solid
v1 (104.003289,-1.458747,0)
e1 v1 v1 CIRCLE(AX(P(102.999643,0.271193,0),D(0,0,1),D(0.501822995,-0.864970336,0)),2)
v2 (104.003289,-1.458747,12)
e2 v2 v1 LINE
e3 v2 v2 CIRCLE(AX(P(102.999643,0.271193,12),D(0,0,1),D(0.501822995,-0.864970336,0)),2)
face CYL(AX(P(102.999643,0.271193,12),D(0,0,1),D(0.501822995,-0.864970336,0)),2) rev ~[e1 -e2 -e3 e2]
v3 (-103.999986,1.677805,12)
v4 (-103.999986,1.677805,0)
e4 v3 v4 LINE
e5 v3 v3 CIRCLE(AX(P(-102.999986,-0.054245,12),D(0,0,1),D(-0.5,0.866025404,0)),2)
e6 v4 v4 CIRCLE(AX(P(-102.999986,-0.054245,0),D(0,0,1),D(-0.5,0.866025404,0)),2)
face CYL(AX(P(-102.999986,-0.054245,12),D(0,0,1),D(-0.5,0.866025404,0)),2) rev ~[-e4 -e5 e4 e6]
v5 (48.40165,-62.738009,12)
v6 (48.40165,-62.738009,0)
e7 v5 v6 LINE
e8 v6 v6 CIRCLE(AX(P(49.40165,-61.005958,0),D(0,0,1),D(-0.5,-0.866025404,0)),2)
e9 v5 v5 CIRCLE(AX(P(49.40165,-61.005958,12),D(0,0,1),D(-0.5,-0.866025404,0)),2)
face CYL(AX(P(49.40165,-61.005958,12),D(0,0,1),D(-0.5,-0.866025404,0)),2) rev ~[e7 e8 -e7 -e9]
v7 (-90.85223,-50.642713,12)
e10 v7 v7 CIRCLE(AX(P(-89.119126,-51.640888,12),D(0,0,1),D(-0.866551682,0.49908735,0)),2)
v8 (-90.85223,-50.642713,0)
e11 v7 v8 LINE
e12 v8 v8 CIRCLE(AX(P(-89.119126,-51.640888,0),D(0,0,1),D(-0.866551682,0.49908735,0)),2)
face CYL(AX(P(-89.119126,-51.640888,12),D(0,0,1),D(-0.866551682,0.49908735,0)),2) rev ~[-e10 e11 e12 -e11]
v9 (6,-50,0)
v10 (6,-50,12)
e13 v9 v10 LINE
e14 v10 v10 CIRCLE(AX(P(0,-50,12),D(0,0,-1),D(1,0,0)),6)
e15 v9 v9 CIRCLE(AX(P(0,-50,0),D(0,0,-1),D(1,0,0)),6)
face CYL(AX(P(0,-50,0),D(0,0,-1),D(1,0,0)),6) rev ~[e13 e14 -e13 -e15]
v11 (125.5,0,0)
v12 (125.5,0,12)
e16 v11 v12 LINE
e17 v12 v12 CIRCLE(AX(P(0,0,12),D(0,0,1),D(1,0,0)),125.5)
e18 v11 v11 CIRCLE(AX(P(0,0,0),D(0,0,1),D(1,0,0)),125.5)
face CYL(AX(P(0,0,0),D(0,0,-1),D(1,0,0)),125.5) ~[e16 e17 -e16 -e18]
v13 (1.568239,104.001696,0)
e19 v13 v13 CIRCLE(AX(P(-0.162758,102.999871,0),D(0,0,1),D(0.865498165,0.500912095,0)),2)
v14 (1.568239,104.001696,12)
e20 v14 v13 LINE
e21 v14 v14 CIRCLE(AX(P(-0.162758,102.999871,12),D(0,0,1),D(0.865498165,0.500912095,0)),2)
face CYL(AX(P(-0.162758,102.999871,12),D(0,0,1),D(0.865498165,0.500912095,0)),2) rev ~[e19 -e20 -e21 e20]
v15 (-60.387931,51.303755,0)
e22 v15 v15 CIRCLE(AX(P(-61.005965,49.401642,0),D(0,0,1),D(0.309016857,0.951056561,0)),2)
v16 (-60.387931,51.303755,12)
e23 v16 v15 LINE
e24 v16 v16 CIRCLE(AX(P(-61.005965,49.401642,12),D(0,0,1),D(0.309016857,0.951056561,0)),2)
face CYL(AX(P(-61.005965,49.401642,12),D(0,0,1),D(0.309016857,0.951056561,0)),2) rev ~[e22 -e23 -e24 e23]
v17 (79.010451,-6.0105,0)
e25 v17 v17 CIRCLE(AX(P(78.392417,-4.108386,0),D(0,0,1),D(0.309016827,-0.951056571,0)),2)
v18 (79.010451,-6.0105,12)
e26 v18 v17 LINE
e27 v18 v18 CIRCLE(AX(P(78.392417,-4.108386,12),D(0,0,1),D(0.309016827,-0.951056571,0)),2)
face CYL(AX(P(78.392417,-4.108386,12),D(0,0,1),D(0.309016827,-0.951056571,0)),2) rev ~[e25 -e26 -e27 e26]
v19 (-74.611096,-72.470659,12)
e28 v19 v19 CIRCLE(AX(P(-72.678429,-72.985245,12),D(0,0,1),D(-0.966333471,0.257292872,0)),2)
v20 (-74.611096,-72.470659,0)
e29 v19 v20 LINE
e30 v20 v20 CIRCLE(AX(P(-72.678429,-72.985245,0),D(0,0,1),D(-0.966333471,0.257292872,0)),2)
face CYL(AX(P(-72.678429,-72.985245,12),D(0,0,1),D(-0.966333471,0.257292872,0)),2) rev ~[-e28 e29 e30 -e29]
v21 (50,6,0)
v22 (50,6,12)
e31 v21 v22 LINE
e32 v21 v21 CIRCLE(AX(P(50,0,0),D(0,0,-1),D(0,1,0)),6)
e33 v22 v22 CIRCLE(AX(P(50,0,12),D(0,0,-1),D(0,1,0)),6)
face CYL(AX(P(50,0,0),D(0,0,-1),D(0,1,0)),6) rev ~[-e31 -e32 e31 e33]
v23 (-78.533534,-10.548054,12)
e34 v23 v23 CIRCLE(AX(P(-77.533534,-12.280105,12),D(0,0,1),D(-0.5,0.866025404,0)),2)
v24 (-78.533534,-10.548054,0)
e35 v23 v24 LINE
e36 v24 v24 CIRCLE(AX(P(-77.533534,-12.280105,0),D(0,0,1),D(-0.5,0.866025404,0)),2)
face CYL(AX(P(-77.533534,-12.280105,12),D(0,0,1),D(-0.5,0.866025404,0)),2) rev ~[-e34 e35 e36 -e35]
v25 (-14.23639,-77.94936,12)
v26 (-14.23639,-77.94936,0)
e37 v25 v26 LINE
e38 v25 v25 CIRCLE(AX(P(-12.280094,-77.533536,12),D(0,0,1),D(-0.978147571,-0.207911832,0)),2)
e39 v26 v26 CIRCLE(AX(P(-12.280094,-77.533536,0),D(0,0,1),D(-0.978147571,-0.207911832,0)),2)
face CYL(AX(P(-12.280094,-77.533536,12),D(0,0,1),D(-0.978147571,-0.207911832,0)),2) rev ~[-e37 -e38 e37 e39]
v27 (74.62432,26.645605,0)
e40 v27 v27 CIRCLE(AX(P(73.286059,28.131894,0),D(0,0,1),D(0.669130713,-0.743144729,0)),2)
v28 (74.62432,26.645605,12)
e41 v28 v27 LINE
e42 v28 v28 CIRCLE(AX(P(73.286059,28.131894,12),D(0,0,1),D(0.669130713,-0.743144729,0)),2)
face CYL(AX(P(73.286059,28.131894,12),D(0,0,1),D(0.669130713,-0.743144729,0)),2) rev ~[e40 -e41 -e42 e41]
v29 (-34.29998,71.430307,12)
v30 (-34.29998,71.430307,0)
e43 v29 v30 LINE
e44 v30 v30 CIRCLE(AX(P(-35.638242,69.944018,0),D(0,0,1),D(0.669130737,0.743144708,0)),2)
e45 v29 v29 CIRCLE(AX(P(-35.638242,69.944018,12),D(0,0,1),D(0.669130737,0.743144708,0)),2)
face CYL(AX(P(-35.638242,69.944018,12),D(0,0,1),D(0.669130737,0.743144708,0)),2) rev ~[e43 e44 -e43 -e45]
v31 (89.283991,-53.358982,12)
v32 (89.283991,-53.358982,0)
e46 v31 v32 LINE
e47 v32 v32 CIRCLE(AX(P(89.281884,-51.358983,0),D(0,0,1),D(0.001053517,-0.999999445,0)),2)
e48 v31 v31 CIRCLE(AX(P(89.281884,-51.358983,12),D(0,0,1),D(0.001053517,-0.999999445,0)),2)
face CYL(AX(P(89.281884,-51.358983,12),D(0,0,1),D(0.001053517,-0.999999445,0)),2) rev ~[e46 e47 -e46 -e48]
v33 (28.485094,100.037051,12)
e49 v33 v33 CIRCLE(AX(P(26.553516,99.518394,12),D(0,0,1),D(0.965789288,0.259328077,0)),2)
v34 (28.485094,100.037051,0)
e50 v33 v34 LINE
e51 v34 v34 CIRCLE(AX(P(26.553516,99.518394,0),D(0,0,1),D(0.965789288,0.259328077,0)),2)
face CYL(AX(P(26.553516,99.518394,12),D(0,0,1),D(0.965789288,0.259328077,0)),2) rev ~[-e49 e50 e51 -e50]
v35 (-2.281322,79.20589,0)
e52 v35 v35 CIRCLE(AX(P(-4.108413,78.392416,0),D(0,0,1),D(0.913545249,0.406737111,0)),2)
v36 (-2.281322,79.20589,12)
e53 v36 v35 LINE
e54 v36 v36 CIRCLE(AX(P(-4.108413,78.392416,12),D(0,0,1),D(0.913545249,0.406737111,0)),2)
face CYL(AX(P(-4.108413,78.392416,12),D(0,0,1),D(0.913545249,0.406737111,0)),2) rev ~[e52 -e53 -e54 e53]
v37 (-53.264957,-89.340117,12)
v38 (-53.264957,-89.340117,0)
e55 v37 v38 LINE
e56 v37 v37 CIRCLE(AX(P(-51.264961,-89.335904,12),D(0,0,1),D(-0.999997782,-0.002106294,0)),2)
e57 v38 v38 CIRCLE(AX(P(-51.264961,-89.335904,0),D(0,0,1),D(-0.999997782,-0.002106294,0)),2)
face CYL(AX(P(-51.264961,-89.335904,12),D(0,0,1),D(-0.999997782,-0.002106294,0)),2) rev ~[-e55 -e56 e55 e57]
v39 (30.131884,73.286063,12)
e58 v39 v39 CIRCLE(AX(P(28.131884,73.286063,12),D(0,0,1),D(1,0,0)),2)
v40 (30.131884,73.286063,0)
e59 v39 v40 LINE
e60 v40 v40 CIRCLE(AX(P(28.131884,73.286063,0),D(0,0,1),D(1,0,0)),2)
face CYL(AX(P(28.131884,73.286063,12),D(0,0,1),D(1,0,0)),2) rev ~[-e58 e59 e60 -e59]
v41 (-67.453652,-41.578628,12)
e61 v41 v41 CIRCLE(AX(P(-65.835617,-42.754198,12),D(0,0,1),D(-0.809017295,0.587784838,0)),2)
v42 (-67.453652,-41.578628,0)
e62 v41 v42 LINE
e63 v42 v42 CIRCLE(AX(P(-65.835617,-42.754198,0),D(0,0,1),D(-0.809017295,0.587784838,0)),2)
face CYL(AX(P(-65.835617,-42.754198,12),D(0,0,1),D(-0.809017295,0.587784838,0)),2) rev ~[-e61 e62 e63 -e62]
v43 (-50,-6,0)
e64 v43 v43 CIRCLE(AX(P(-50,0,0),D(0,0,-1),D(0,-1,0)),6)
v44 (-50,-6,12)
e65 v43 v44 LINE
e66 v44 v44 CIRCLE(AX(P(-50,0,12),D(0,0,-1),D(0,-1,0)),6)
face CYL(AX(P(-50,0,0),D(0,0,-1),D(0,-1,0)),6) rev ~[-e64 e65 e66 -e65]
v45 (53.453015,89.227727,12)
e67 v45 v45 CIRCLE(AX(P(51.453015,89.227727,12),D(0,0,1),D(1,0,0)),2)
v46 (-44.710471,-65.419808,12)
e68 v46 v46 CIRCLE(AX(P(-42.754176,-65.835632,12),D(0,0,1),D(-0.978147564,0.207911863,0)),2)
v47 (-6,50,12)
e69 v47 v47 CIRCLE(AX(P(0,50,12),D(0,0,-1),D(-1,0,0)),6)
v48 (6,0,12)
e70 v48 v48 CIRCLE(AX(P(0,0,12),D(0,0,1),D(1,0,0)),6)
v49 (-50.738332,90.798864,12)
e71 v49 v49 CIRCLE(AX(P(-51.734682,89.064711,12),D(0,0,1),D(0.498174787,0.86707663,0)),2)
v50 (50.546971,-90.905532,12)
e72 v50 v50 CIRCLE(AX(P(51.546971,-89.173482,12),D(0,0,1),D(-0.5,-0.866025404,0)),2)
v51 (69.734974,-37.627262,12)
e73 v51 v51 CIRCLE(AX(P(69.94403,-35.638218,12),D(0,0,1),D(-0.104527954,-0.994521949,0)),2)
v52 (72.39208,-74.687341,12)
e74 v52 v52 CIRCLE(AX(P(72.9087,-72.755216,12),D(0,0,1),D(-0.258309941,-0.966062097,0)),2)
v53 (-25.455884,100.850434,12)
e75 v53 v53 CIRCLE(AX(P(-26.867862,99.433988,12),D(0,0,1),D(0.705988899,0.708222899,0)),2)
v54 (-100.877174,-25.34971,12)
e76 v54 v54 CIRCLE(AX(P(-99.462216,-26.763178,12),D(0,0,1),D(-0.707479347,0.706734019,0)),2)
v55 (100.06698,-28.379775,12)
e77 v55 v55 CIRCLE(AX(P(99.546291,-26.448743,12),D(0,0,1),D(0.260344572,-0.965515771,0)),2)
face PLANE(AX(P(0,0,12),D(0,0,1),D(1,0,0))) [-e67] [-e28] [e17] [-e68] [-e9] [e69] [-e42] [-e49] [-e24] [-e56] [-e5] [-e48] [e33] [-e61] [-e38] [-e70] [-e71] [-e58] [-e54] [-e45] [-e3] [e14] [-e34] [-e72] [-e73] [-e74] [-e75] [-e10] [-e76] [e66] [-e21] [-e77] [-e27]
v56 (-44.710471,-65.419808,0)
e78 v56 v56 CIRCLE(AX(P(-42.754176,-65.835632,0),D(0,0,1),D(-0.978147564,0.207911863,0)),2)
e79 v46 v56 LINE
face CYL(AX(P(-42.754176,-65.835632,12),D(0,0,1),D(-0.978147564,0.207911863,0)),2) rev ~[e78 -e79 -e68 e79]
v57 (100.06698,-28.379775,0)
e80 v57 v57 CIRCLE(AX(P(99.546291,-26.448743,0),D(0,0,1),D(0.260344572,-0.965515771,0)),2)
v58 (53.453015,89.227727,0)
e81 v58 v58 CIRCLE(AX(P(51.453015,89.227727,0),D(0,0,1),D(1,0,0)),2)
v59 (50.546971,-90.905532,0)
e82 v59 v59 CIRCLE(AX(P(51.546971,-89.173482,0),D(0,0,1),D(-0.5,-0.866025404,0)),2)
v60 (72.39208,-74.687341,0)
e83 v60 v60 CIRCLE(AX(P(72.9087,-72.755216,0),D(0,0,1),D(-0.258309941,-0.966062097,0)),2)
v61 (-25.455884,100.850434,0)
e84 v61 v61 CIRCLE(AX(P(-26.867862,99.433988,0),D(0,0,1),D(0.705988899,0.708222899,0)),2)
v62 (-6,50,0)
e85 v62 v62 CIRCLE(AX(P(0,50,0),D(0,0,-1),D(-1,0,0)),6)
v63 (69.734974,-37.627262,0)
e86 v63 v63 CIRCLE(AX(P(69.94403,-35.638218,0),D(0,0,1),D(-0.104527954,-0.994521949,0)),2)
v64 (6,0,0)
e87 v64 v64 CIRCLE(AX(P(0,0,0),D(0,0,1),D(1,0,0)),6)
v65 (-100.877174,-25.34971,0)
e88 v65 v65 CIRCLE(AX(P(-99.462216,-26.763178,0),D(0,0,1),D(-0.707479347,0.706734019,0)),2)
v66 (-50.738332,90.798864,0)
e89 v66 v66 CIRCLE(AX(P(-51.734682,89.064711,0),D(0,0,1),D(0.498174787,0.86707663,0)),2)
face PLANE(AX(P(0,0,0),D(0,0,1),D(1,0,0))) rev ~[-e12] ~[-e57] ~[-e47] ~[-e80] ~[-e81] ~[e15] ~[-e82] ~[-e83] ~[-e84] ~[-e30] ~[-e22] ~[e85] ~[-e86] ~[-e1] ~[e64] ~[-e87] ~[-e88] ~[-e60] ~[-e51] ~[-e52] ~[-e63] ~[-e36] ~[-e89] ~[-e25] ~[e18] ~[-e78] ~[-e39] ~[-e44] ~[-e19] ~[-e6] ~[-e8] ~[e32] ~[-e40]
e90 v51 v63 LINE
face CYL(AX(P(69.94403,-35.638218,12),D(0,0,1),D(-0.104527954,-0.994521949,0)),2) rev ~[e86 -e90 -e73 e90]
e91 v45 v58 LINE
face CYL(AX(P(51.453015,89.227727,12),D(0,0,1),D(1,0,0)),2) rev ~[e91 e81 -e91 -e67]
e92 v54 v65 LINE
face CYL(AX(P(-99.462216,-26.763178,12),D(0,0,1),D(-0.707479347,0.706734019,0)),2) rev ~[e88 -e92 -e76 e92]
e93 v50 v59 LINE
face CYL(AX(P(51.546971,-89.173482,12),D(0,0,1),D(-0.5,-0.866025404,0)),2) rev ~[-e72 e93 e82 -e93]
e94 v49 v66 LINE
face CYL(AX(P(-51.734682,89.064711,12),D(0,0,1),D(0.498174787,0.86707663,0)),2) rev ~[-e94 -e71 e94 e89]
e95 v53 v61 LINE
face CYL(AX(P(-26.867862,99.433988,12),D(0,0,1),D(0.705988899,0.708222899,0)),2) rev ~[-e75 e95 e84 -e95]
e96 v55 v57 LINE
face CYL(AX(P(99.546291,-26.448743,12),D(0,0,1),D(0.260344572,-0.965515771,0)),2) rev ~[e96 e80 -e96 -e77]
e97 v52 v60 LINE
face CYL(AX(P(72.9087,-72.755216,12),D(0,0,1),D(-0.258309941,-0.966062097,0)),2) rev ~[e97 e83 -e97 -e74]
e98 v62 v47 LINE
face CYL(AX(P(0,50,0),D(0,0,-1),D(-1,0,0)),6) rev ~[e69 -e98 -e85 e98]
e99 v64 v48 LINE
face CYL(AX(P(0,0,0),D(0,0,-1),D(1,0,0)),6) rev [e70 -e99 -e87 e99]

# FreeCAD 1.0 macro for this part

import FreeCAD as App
import Part
import Sketcher
from FreeCAD import Vector
Q = App.Units.Quantity

doc = App.newDocument("Part")
body = doc.addObject("PartDesign::Body", "Body")

sketch1 = doc.addObject("Sketcher::SketchObject", "Sketch")
body.addObject(sketch1)
sketch1.AttachmentSupport = (doc.XY_Plane, [""])
sketch1.MapMode = "FlatFace"
sketch1.addGeometry([
    Part.Circle(Vector(0, 0, 0), Vector(0, 0, 1), 126),
    Part.Circle(Vector(0, 0, 0), Vector(0, 0, 1), 6),
], False)
sketch1.addConstraint([
    Sketcher.Constraint("Coincident", 0, 3, -1, 1),
    Sketcher.Constraint("Coincident", 1, 3, -1, 1),
    Sketcher.Constraint("Diameter", 0, Q("251 mm")),
    Sketcher.Constraint("Diameter", 1, Q("12 mm")),
])
pad1 = doc.addObject("PartDesign::Pad", "Pad")
body.addObject(pad1)
pad1.Profile = sketch1
pad1.Length = 12

sketch2 = doc.addObject("Sketcher::SketchObject", "Sketch001")
body.addObject(sketch2)
sketch2.AttachmentSupport = (doc.XY_Plane, [""])
sketch2.MapMode = "FlatFace"
sketch2.addGeometry(Part.Circle(Vector(0, 50, 0), Vector(0, 0, 1), 6), False)
sketch2.addConstraint([
    Sketcher.Constraint("PointOnObject", 0, 3, -2),
    Sketcher.Constraint("Diameter", 0, Q("12 mm")),
    Sketcher.Constraint("DistanceY", -1, 1, 0, 3, Q("50 mm")),
])
pocket1 = doc.addObject("PartDesign::Pocket", "Pocket")
body.addObject(pocket1)
pocket1.Profile = sketch2
pocket1.Type = "ThroughAll"
pocket1.Reversed = True
doc.recompute()

polarpattern = doc.addObject("PartDesign::PolarPattern", "PolarPattern")
body.addObject(polarpattern)
polarpattern.Originals = [pocket1]
polarpattern.Axis = (doc.Z_Axis, [""])
polarpattern.Angle = 360
polarpattern.Occurrences = 4
body.Tip = polarpattern

sketch3 = doc.addObject("Sketcher::SketchObject", "Sketch002")
body.addObject(sketch3)
sketch3.AttachmentSupport = (doc.XY_Plane, [""])
sketch3.MapMode = "FlatFace"
sketch3.AttachmentOffset = App.Placement(Vector(0, 0, 12), App.Rotation())
sketch3.addGeometry(Part.Circle(Vector(28.1, 73.3, 0), Vector(0, 0, 1), 2), False)
sketch3.addConstraint([
    Sketcher.Constraint("Diameter", 0, Q("4 mm")),
    Sketcher.Constraint("DistanceX", -1, 1, 0, 3, Q("28.131884 mm")),
    Sketcher.Constraint("DistanceY", -1, 1, 0, 3, Q("73.286063 mm")),
])
pocket2 = doc.addObject("PartDesign::Pocket", "Pocket001")
body.addObject(pocket2)
pocket2.Profile = sketch3
pocket2.Type = "ThroughAll"

sketch4 = doc.addObject("Sketcher::SketchObject", "Sketch003")
body.addObject(sketch4)
sketch4.AttachmentSupport = (doc.XY_Plane, [""])
sketch4.MapMode = "FlatFace"
sketch4.AttachmentOffset = App.Placement(Vector(0, 0, 12), App.Rotation())
sketch4.addGeometry(Part.Circle(Vector(51.5, 89.2, 0), Vector(0, 0, 1), 2), False)
sketch4.addConstraint([
    Sketcher.Constraint("Diameter", 0, Q("4 mm")),
    Sketcher.Constraint("DistanceX", -1, 1, 0, 3, Q("51.453015 mm")),
    Sketcher.Constraint("DistanceY", -1, 1, 0, 3, Q("89.227727 mm")),
])
pocket3 = doc.addObject("PartDesign::Pocket", "Pocket002")
body.addObject(pocket3)
pocket3.Profile = sketch4
pocket3.Type = "ThroughAll"

sketch5 = doc.addObject("Sketcher::SketchObject", "Sketch004")
body.addObject(sketch5)
sketch5.AttachmentSupport = (doc.XY_Plane, [""])
sketch5.MapMode = "FlatFace"
sketch5.AttachmentOffset = App.Placement(Vector(0, 0, 12), App.Rotation())
sketch5.addGeometry(Part.Circle(Vector(26.6, 99.5, 0), Vector(0, 0, 1), 2), False)
sketch5.addConstraint([
    Sketcher.Constraint("Diameter", 0, Q("4 mm")),
    Sketcher.Constraint("DistanceX", -1, 1, 0, 3, Q("26.553516 mm")),
    Sketcher.Constraint("DistanceY", -1, 1, 0, 3, Q("99.518394 mm")),
])
pocket4 = doc.addObject("PartDesign::Pocket", "Pocket003")
body.addObject(pocket4)
pocket4.Profile = sketch5
pocket4.Type = "ThroughAll"

sketch6 = doc.addObject("Sketcher::SketchObject", "Sketch005")
body.addObject(sketch6)
sketch6.AttachmentSupport = (doc.XY_Plane, [""])
sketch6.MapMode = "FlatFace"
sketch6.AttachmentOffset = App.Placement(Vector(0, 0, 12), App.Rotation())
sketch6.addGeometry(Part.Circle(Vector(-0.2, 103, 0), Vector(0, 0, 1), 2), False)
sketch6.addConstraint([
    Sketcher.Constraint("Diameter", 0, Q("4 mm")),
    Sketcher.Constraint("DistanceY", -1, 1, 0, 3, Q("102.999872 mm")),
    Sketcher.Constraint("DistanceX", 0, 3, -1, 1, Q("0.162758 mm")),
])
pocket5 = doc.addObject("PartDesign::Pocket", "Pocket004")
body.addObject(pocket5)
pocket5.Profile = sketch6
pocket5.Type = "ThroughAll"

sketch7 = doc.addObject("Sketcher::SketchObject", "Sketch006")
body.addObject(sketch7)
sketch7.AttachmentSupport = (doc.XY_Plane, [""])
sketch7.MapMode = "FlatFace"
sketch7.AttachmentOffset = App.Placement(Vector(0, 0, 12), App.Rotation())
sketch7.addGeometry(Part.Circle(Vector(-26.9, 99.4, 0), Vector(0, 0, 1), 2), False)
sketch7.addConstraint([
    Sketcher.Constraint("Diameter", 0, Q("4 mm")),
    Sketcher.Constraint("DistanceY", -1, 1, 0, 3, Q("99.433988 mm")),
    Sketcher.Constraint("DistanceX", 0, 3, -1, 1, Q("26.867862 mm")),
])
pocket6 = doc.addObject("PartDesign::Pocket", "Pocket005")
body.addObject(pocket6)
pocket6.Profile = sketch7
pocket6.Type = "ThroughAll"

sketch8 = doc.addObject("Sketcher::SketchObject", "Sketch007")
body.addObject(sketch8)
sketch8.AttachmentSupport = (doc.XY_Plane, [""])
sketch8.MapMode = "FlatFace"
sketch8.AttachmentOffset = App.Placement(Vector(0, 0, 12), App.Rotation())
sketch8.addGeometry(Part.Circle(Vector(-51.7, 89.1, 0), Vector(0, 0, 1), 2), False)
sketch8.addConstraint([
    Sketcher.Constraint("Diameter", 0, Q("4 mm")),
    Sketcher.Constraint("DistanceY", -1, 1, 0, 3, Q("89.064711 mm")),
    Sketcher.Constraint("DistanceX", 0, 3, -1, 1, Q("51.734682 mm")),
])
pocket7 = doc.addObject("PartDesign::Pocket", "Pocket006")
body.addObject(pocket7)
pocket7.Profile = sketch8
pocket7.Type = "ThroughAll"
doc.recompute()

polarpattern2 = doc.addObject("PartDesign::PolarPattern", "PolarPattern001")
body.addObject(polarpattern2)
polarpattern2.Originals = [pocket3, pocket4, pocket5, pocket6, pocket7]
polarpattern2.Axis = (doc.Z_Axis, [""])
polarpattern2.Angle = 360
polarpattern2.Occurrences = 3
body.Tip = polarpattern2

sketch9 = doc.addObject("Sketcher::SketchObject", "Sketch008")
body.addObject(sketch9)
sketch9.AttachmentSupport = (doc.XY_Plane, [""])
sketch9.MapMode = "FlatFace"
sketch9.AttachmentOffset = App.Placement(Vector(0, 0, 12), App.Rotation())
sketch9.addGeometry(Part.Circle(Vector(-4.1, 78.4, 0), Vector(0, 0, 1), 2), False)
sketch9.addConstraint([
    Sketcher.Constraint("Diameter", 0, Q("4 mm")),
    Sketcher.Constraint("DistanceX", 0, 3, -1, 1, Q("4.108413 mm")),
    Sketcher.Constraint("DistanceY", -1, 1, 0, 3, Q("78.392416 mm")),
])
pocket8 = doc.addObject("PartDesign::Pocket", "Pocket007")
body.addObject(pocket8)
pocket8.Profile = sketch9
pocket8.Type = "ThroughAll"

sketch10 = doc.addObject("Sketcher::SketchObject", "Sketch009")
body.addObject(sketch10)
sketch10.AttachmentSupport = (doc.XY_Plane, [""])
sketch10.MapMode = "FlatFace"
sketch10.AttachmentOffset = App.Placement(Vector(0, 0, 12), App.Rotation())
sketch10.addGeometry(Part.Circle(Vector(-35.6, 69.9, 0), Vector(0, 0, 1), 2), False)
sketch10.addConstraint([
    Sketcher.Constraint("Diameter", 0, Q("4 mm")),
    Sketcher.Constraint("DistanceX", 0, 3, -1, 1, Q("35.638242 mm")),
    Sketcher.Constraint("DistanceY", -1, 1, 0, 3, Q("69.944018 mm")),
])
pocket9 = doc.addObject("PartDesign::Pocket", "Pocket008")
body.addObject(pocket9)
pocket9.Profile = sketch10
pocket9.Type = "ThroughAll"

sketch11 = doc.addObject("Sketcher::SketchObject", "Sketch010")
body.addObject(sketch11)
sketch11.AttachmentSupport = (doc.XY_Plane, [""])
sketch11.MapMode = "FlatFace"
sketch11.AttachmentOffset = App.Placement(Vector(0, 0, 12), App.Rotation())
sketch11.addGeometry(Part.Circle(Vector(-61, 49.4, 0), Vector(0, 0, 1), 2), False)
sketch11.addConstraint([
    Sketcher.Constraint("Diameter", 0, Q("4 mm")),
    Sketcher.Constraint("DistanceY", -1, 1, 0, 3, Q("49.401642 mm")),
    Sketcher.Constraint("DistanceX", 0, 3, -1, 1, Q("61.005965 mm")),
])
pocket10 = doc.addObject("PartDesign::Pocket", "Pocket009")
body.addObject(pocket10)
pocket10.Profile = sketch11
pocket10.Type = "ThroughAll"
doc.recompute()

polarpattern3 = doc.addObject("PartDesign::PolarPattern", "PolarPattern002")
body.addObject(polarpattern3)
polarpattern3.Originals = [pocket2, pocket8, pocket9, pocket10]
polarpattern3.Axis = (doc.Z_Axis, [""])
polarpattern3.Angle = 360
polarpattern3.Occurrences = 3
body.Tip = polarpattern3

doc.recompute()
